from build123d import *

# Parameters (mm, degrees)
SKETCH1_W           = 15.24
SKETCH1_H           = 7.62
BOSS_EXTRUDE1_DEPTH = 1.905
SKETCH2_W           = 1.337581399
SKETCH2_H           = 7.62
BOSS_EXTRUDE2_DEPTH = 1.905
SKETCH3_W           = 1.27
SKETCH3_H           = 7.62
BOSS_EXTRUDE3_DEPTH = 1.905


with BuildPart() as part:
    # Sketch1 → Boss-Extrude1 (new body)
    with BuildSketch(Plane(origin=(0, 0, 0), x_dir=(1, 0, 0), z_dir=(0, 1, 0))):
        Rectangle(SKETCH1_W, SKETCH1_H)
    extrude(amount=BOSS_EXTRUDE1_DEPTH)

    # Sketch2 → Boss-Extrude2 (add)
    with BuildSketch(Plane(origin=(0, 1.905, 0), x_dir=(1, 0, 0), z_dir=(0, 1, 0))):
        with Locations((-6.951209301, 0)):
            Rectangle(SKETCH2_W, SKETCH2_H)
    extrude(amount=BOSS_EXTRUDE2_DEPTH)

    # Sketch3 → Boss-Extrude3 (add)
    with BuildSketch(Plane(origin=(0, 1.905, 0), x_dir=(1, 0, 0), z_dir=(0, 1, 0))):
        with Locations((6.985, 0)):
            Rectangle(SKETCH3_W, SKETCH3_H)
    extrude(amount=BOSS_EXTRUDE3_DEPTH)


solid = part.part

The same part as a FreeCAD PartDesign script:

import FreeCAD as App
import Part
import Sketcher
from FreeCAD import Vector
Q = App.Units.Quantity

doc = App.newDocument("Part")
body = doc.addObject("PartDesign::Body", "Body")

# Sketch on XZ plane
sketch1 = body.newObject("Sketcher::SketchObject", "Sketch")
sketch1.AttachmentSupport = (doc.getObject("XZ_Plane"), [""])
sketch1.MapMode = "FlatFace"
sketch1.addGeometry([
    Part.LineSegment(Vector(-8, -4, 0), Vector(-8, 4, 0)),
    Part.LineSegment(Vector(-8, 4, 0), Vector(8, 4, 0)),
    Part.LineSegment(Vector(8, 4, 0), Vector(8, -4, 0)),
    Part.LineSegment(Vector(8, -4, 0), Vector(-8, -4, 0)),
], False)
sketch1.addConstraint([
    Sketcher.Constraint("Coincident", 0, 2, 1, 1),
    Sketcher.Constraint("Coincident", 1, 2, 2, 1),
    Sketcher.Constraint("Coincident", 2, 2, 3, 1),
    Sketcher.Constraint("Coincident", 3, 2, 0, 1),
    Sketcher.Constraint("Vertical", 0),
    Sketcher.Constraint("Horizontal", 1),
    Sketcher.Constraint("Vertical", 2),
    Sketcher.Constraint("Horizontal", 3),
    Sketcher.Constraint("Symmetric", 0, 2, 2, 2, -1, 1),
    Sketcher.Constraint("DistanceX", 1, 1, 1, 2, Q("0.6 in")),
    Sketcher.Constraint("DistanceY", 0, 1, 0, 2, Q("0.3 in")),
])
pad1 = body.newObject("PartDesign::Pad", "Pad")
pad1.Profile = sketch1
pad1.Length = Q("0.075 in")
pad1.Reversed = True

# Sketch on XZ plane
sketch2 = body.newObject("Sketcher::SketchObject", "Sketch001")
sketch2.AttachmentSupport = (doc.getObject("XZ_Plane"), [""])
sketch2.MapMode = "FlatFace"
sketch2.AttachmentOffset = App.Placement(Vector(0, 0, -0.075 * 25.4), App.Rotation())
sketch2.addGeometry([
    Part.LineSegment(Vector(-7.6, -3.8, 0), Vector(-7.6, 3.8, 0)),
    Part.LineSegment(Vector(-7.6, 3.8, 0), Vector(-6.3, 3.8, 0)),
    Part.LineSegment(Vector(-6.3, 3.8, 0), Vector(-6.3, -3.8, 0)),
    Part.LineSegment(Vector(-6.3, -3.8, 0), Vector(-7.6, -3.8, 0)),
], False)
sketch2.addConstraint([
    Sketcher.Constraint("Coincident", 0, 2, 1, 1),
    Sketcher.Constraint("Coincident", 1, 2, 2, 1),
    Sketcher.Constraint("Coincident", 2, 2, 3, 1),
    Sketcher.Constraint("Coincident", 3, 2, 0, 1),
    Sketcher.Constraint("Vertical", 0),
    Sketcher.Constraint("Horizontal", 1),
    Sketcher.Constraint("Vertical", 2),
    Sketcher.Constraint("Horizontal", 3),
    Sketcher.Constraint("DistanceY", 0, 1, 0, 2, Q("0.3 in")),
    Sketcher.Constraint("DistanceX", 0, 2, -1, 1, Q("0.3 in")),
    Sketcher.Constraint("DistanceY", -1, 1, 0, 2, Q("0.15 in")),
    Sketcher.Constraint("DistanceX", 1, 1, 1, 2, 1.337581),
])
pad2 = body.newObject("PartDesign::Pad", "Pad001")
pad2.Profile = sketch2
pad2.Length = Q("0.075 in")
pad2.Reversed = True

# Sketch on XZ plane
sketch3 = body.newObject("Sketcher::SketchObject", "Sketch002")
sketch3.AttachmentSupport = (doc.getObject("XZ_Plane"), [""])
sketch3.MapMode = "FlatFace"
sketch3.AttachmentOffset = App.Placement(Vector(0, 0, -0.075 * 25.4), App.Rotation())
sketch3.addGeometry([
    Part.LineSegment(Vector(6.3, -3.8, 0), Vector(6.3, 3.8, 0)),
    Part.LineSegment(Vector(6.3, 3.8, 0), Vector(7.6, 3.8, 0)),
    Part.LineSegment(Vector(7.6, 3.8, 0), Vector(7.6, -3.8, 0)),
    Part.LineSegment(Vector(7.6, -3.8, 0), Vector(6.3, -3.8, 0)),
], False)
sketch3.addConstraint([
    Sketcher.Constraint("Coincident", 0, 2, 1, 1),
    Sketcher.Constraint("Coincident", 1, 2, 2, 1),
    Sketcher.Constraint("Coincident", 2, 2, 3, 1),
    Sketcher.Constraint("Coincident", 3, 2, 0, 1),
    Sketcher.Constraint("Vertical", 0),
    Sketcher.Constraint("Horizontal", 1),
    Sketcher.Constraint("Vertical", 2),
    Sketcher.Constraint("Horizontal", 3),
    Sketcher.Constraint("DistanceY", 0, 1, 0, 2, Q("0.3 in")),
    Sketcher.Constraint("DistanceX", 1, 1, 1, 2, Q("0.05 in")),
    Sketcher.Constraint("DistanceX", -1, 1, 1, 2, Q("0.3 in")),
    Sketcher.Constraint("DistanceY", -1, 1, 0, 2, Q("0.15 in")),
])
pad3 = body.newObject("PartDesign::Pad", "Pad002")
pad3.Profile = sketch3
pad3.Length = Q("0.075 in")
pad3.Reversed = True

doc.recompute()
